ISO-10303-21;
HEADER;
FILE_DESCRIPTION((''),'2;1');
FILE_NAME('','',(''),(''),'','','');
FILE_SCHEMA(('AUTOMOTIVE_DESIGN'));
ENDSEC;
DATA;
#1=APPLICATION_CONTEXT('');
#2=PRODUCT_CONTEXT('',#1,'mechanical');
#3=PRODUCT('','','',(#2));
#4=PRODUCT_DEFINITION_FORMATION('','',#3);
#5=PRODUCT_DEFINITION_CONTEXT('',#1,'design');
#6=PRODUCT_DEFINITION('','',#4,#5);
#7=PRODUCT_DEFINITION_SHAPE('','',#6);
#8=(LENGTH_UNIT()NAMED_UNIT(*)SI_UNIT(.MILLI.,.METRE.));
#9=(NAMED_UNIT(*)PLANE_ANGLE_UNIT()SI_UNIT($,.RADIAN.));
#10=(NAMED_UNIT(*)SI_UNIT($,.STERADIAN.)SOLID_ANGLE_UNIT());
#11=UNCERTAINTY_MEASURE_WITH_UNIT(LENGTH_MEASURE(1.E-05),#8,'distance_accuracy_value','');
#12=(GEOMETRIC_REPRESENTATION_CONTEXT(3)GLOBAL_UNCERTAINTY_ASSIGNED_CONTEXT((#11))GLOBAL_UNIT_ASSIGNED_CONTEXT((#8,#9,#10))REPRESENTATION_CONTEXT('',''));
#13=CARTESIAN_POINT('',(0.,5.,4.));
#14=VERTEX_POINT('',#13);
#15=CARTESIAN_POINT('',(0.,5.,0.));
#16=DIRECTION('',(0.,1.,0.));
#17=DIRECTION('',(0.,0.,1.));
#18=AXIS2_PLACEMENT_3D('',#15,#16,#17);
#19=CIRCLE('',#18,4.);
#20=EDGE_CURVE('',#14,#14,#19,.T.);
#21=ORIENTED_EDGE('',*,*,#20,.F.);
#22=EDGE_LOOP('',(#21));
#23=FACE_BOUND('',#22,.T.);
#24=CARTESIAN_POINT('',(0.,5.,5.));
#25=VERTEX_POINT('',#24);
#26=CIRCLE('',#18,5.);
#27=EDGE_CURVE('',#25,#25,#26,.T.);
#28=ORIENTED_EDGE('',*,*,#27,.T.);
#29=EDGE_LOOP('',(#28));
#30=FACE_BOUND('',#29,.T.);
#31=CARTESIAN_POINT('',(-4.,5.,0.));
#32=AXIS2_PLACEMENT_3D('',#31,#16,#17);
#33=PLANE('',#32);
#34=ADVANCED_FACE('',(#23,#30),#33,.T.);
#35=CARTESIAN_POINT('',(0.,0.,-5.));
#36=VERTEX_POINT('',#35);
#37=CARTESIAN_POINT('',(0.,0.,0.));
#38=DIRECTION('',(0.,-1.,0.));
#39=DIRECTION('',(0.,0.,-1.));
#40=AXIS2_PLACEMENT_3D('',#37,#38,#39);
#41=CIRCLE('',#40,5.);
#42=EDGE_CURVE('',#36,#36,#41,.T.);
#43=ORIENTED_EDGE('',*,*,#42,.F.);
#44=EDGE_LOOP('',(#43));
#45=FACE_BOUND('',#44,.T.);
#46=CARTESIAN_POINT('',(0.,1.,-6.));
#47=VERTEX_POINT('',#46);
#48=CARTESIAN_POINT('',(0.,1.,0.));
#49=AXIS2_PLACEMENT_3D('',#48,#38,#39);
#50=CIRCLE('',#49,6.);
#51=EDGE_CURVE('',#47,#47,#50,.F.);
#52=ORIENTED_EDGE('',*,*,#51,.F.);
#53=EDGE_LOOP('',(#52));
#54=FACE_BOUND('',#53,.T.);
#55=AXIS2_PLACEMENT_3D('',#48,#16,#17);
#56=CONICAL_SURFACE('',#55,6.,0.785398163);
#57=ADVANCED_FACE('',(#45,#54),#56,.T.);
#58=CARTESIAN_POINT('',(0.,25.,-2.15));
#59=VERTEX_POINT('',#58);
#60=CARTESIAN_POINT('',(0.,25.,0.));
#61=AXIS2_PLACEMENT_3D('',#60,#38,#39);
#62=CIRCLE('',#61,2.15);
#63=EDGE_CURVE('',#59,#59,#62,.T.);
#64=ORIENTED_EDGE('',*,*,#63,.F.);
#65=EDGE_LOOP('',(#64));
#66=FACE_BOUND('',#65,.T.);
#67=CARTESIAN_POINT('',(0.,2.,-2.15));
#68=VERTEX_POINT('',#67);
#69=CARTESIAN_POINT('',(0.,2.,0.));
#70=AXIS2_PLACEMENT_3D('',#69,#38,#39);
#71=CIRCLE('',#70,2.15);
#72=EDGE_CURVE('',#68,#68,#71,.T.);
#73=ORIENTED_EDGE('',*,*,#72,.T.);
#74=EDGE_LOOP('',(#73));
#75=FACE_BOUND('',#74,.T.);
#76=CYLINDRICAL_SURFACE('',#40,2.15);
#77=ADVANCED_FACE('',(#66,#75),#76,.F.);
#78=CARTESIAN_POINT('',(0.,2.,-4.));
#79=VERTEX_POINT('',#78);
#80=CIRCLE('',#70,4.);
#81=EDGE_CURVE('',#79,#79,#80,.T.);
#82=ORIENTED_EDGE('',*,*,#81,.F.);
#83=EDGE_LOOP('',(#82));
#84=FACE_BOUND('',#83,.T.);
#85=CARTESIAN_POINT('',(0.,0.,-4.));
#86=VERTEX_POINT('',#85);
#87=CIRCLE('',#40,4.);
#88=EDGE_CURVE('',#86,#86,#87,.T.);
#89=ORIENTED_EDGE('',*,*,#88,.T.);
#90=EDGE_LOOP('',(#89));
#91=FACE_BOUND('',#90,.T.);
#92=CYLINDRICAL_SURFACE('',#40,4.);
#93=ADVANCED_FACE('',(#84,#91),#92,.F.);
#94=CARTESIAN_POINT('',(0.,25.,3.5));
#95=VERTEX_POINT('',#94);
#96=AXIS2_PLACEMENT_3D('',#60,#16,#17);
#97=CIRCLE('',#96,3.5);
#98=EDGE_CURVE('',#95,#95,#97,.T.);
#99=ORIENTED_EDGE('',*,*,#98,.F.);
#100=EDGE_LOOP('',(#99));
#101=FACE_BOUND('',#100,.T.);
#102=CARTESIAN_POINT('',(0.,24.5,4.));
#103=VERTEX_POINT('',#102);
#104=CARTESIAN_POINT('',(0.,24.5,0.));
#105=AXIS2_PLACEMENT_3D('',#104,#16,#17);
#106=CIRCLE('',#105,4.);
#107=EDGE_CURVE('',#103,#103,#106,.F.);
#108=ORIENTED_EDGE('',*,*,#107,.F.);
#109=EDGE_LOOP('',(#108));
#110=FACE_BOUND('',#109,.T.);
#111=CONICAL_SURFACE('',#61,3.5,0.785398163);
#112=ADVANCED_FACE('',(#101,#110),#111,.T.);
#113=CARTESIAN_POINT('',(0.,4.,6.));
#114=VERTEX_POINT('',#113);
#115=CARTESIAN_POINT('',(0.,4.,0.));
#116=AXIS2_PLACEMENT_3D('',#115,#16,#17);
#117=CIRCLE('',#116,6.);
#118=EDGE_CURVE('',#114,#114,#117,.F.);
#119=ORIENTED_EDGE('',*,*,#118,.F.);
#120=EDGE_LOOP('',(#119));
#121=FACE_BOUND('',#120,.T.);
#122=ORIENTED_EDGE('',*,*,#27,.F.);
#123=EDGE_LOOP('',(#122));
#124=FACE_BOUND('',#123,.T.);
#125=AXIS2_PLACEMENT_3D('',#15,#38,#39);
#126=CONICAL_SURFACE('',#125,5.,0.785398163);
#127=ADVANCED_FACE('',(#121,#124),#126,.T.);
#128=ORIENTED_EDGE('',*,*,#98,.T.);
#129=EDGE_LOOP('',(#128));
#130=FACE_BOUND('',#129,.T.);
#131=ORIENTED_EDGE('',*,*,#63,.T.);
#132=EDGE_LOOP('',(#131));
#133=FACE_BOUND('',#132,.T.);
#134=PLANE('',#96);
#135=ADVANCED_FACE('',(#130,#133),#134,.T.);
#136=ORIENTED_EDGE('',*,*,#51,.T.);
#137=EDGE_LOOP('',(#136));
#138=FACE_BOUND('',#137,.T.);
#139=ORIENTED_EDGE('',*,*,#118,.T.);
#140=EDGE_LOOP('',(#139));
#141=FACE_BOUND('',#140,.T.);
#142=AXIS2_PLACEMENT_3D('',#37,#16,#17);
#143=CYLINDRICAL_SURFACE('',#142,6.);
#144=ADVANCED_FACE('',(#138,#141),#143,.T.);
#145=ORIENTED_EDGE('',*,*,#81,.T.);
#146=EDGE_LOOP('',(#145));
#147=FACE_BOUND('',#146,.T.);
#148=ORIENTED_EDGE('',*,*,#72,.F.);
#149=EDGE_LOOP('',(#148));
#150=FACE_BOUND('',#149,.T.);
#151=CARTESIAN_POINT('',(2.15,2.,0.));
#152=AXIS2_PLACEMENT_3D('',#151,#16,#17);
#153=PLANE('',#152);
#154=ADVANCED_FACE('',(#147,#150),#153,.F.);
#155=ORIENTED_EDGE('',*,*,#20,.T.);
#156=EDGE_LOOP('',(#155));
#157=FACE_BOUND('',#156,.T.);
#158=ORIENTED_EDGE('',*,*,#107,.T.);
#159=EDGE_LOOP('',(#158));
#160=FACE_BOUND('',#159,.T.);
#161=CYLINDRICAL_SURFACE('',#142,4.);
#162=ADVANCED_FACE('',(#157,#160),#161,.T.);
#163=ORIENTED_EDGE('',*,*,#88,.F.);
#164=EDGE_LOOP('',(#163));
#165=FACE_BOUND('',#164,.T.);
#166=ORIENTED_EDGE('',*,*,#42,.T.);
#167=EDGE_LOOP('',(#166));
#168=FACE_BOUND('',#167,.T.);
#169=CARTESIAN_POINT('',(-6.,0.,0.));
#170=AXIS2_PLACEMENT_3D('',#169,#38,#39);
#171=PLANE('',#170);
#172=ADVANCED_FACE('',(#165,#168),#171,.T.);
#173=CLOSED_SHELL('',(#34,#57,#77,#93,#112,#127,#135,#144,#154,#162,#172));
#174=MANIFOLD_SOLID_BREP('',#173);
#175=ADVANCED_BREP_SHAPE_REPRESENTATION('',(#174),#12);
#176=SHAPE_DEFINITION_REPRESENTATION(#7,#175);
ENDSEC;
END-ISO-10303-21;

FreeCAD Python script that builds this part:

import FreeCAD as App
import Part
import Sketcher

V = App.Vector
Q = App.Units.Quantity


def edges_at(feature, points):
    """Names of the edges that pass closest to the given points."""
    edges = feature.Shape.Edges
    near = lambda p: min(range(len(edges)), key=lambda i: edges[i].distToShape(Part.Vertex(*p))[0])
    return sorted({f"Edge{near(p) + 1}" for p in points})


def add_polygon(sketch, points):
    """Adds a closed chain of lines whose ends are joined by coincident constraints."""
    first, n = sketch.GeometryCount, len(points)
    for a, b in zip(points, points[1:] + points[:1]):
        sketch.addGeometry(Part.LineSegment(App.Vector(*a, 0), App.Vector(*b, 0)), False)
    for i in range(n):
        sketch.addConstraint(Sketcher.Constraint("Coincident", first + i, 2, first + (i + 1) % n, 1))

doc = App.newDocument("Part")
params = doc.addObject("Spreadsheet::Sheet", "Params")
for row, (alias, value) in enumerate([
    ("sketch1_width", "4 mm"),
    ("sketch1_width2", "2 mm"),
    ("sketch1_height", "25 mm"),
    ("sketch1_height2", "20 mm"),
    ("revolution_angle", "360 deg"),
    ("sketch2_diameter", "4.3 mm"),
    ("hole_diameter", "4.3 mm"),
    ("hole_cbore_diameter", "8 mm"),
    ("hole_cbore_depth", "2 mm"),
    ("chamfer_size", "1 mm"),
    ("chamfer2_size", "0.5 mm"),
], start=1):
    params.set(f"A{row}", alias)
    params.set(f"B{row}", "=" + value)
    params.setAlias(f"B{row}", alias)

body = doc.addObject("PartDesign::Body", "Body")

sketch1 = body.newObject("Sketcher::SketchObject", "Sketch")
sketch1.AttachmentSupport = (doc.getObject("XY_Plane"), [""])
sketch1.MapMode = "FlatFace"
add_polygon(sketch1, [(0, 0), (0, 25), (-4, 25), (-4, 5), (-6, 5), (-6, 0)])
sketch1.addConstraint(Sketcher.Constraint("Vertical", 0))
sketch1.addConstraint(Sketcher.Constraint("Horizontal", 1))
sketch1.addConstraint(Sketcher.Constraint("Vertical", 2))
sketch1.addConstraint(Sketcher.Constraint("Horizontal", 3))
sketch1.addConstraint(Sketcher.Constraint("Vertical", 4))
sketch1.addConstraint(Sketcher.Constraint("Horizontal", 5))
sketch1.addConstraint(Sketcher.Constraint("Coincident", 5, 2, -1, 1))
sketch1.addConstraint(Sketcher.Constraint("DistanceX", 1, 2, 1, 1, Q("4 mm")))
sketch1.addConstraint(Sketcher.Constraint("DistanceX", 3, 2, 3, 1, Q("2 mm")))
sketch1.addConstraint(Sketcher.Constraint("DistanceY", 0, 1, 0, 2, Q("25 mm")))
sketch1.addConstraint(Sketcher.Constraint("DistanceY", 2, 2, 2, 1, Q("20 mm")))
sketch1.setExpression("Constraints[13]", "Params.sketch1_width")
sketch1.setExpression("Constraints[14]", "Params.sketch1_width2")
sketch1.setExpression("Constraints[15]", "Params.sketch1_height")
sketch1.setExpression("Constraints[16]", "Params.sketch1_height2")
revolution = body.newObject("PartDesign::Revolution", "Revolution")
revolution.Profile = sketch1
revolution.ReferenceAxis = (sketch1, ["V_Axis"])
revolution.setExpression("Angle", "Params.revolution_angle")

sketch2 = body.newObject("Sketcher::SketchObject", "Sketch001")
sketch2.AttachmentSupport = (doc.getObject("XZ_Plane"), [""])
sketch2.MapMode = "FlatFace"
sketch2.addGeometry(Part.Circle(V(0, 0, 0), V(0, 0, 1), 2.15), False)
sketch2.addConstraint(Sketcher.Constraint("Coincident", 0, 3, -1, 1))
sketch2.addConstraint(Sketcher.Constraint("Diameter", 0, Q("4.3 mm")))
sketch2.setExpression("Constraints[1]", "Params.sketch2_diameter")
doc.recompute()
hole = body.newObject("PartDesign::Hole", "Hole")
hole.Profile = sketch2
hole.ThreadType = "None"
hole.setExpression("Diameter", "Params.hole_diameter")
hole.DepthType = "ThroughAll"
hole.HoleCutType = "Counterbore"
hole.setExpression("HoleCutDiameter", "Params.hole_cbore_diameter")
hole.setExpression("HoleCutDepth", "Params.hole_cbore_depth")
doc.recompute()

chamfer = body.newObject("PartDesign::Chamfer", "Chamfer")
chamfer.Base = (hole, edges_at(hole, [(6, 0, 0), (6, 5, 0)]))
chamfer.setExpression("Size", "Params.chamfer_size")
doc.recompute()

chamfer2 = body.newObject("PartDesign::Chamfer", "Chamfer001")
chamfer2.Base = (chamfer, edges_at(chamfer, [(4, 25, 0)]))
chamfer2.setExpression("Size", "Params.chamfer2_size")

doc.recompute()
